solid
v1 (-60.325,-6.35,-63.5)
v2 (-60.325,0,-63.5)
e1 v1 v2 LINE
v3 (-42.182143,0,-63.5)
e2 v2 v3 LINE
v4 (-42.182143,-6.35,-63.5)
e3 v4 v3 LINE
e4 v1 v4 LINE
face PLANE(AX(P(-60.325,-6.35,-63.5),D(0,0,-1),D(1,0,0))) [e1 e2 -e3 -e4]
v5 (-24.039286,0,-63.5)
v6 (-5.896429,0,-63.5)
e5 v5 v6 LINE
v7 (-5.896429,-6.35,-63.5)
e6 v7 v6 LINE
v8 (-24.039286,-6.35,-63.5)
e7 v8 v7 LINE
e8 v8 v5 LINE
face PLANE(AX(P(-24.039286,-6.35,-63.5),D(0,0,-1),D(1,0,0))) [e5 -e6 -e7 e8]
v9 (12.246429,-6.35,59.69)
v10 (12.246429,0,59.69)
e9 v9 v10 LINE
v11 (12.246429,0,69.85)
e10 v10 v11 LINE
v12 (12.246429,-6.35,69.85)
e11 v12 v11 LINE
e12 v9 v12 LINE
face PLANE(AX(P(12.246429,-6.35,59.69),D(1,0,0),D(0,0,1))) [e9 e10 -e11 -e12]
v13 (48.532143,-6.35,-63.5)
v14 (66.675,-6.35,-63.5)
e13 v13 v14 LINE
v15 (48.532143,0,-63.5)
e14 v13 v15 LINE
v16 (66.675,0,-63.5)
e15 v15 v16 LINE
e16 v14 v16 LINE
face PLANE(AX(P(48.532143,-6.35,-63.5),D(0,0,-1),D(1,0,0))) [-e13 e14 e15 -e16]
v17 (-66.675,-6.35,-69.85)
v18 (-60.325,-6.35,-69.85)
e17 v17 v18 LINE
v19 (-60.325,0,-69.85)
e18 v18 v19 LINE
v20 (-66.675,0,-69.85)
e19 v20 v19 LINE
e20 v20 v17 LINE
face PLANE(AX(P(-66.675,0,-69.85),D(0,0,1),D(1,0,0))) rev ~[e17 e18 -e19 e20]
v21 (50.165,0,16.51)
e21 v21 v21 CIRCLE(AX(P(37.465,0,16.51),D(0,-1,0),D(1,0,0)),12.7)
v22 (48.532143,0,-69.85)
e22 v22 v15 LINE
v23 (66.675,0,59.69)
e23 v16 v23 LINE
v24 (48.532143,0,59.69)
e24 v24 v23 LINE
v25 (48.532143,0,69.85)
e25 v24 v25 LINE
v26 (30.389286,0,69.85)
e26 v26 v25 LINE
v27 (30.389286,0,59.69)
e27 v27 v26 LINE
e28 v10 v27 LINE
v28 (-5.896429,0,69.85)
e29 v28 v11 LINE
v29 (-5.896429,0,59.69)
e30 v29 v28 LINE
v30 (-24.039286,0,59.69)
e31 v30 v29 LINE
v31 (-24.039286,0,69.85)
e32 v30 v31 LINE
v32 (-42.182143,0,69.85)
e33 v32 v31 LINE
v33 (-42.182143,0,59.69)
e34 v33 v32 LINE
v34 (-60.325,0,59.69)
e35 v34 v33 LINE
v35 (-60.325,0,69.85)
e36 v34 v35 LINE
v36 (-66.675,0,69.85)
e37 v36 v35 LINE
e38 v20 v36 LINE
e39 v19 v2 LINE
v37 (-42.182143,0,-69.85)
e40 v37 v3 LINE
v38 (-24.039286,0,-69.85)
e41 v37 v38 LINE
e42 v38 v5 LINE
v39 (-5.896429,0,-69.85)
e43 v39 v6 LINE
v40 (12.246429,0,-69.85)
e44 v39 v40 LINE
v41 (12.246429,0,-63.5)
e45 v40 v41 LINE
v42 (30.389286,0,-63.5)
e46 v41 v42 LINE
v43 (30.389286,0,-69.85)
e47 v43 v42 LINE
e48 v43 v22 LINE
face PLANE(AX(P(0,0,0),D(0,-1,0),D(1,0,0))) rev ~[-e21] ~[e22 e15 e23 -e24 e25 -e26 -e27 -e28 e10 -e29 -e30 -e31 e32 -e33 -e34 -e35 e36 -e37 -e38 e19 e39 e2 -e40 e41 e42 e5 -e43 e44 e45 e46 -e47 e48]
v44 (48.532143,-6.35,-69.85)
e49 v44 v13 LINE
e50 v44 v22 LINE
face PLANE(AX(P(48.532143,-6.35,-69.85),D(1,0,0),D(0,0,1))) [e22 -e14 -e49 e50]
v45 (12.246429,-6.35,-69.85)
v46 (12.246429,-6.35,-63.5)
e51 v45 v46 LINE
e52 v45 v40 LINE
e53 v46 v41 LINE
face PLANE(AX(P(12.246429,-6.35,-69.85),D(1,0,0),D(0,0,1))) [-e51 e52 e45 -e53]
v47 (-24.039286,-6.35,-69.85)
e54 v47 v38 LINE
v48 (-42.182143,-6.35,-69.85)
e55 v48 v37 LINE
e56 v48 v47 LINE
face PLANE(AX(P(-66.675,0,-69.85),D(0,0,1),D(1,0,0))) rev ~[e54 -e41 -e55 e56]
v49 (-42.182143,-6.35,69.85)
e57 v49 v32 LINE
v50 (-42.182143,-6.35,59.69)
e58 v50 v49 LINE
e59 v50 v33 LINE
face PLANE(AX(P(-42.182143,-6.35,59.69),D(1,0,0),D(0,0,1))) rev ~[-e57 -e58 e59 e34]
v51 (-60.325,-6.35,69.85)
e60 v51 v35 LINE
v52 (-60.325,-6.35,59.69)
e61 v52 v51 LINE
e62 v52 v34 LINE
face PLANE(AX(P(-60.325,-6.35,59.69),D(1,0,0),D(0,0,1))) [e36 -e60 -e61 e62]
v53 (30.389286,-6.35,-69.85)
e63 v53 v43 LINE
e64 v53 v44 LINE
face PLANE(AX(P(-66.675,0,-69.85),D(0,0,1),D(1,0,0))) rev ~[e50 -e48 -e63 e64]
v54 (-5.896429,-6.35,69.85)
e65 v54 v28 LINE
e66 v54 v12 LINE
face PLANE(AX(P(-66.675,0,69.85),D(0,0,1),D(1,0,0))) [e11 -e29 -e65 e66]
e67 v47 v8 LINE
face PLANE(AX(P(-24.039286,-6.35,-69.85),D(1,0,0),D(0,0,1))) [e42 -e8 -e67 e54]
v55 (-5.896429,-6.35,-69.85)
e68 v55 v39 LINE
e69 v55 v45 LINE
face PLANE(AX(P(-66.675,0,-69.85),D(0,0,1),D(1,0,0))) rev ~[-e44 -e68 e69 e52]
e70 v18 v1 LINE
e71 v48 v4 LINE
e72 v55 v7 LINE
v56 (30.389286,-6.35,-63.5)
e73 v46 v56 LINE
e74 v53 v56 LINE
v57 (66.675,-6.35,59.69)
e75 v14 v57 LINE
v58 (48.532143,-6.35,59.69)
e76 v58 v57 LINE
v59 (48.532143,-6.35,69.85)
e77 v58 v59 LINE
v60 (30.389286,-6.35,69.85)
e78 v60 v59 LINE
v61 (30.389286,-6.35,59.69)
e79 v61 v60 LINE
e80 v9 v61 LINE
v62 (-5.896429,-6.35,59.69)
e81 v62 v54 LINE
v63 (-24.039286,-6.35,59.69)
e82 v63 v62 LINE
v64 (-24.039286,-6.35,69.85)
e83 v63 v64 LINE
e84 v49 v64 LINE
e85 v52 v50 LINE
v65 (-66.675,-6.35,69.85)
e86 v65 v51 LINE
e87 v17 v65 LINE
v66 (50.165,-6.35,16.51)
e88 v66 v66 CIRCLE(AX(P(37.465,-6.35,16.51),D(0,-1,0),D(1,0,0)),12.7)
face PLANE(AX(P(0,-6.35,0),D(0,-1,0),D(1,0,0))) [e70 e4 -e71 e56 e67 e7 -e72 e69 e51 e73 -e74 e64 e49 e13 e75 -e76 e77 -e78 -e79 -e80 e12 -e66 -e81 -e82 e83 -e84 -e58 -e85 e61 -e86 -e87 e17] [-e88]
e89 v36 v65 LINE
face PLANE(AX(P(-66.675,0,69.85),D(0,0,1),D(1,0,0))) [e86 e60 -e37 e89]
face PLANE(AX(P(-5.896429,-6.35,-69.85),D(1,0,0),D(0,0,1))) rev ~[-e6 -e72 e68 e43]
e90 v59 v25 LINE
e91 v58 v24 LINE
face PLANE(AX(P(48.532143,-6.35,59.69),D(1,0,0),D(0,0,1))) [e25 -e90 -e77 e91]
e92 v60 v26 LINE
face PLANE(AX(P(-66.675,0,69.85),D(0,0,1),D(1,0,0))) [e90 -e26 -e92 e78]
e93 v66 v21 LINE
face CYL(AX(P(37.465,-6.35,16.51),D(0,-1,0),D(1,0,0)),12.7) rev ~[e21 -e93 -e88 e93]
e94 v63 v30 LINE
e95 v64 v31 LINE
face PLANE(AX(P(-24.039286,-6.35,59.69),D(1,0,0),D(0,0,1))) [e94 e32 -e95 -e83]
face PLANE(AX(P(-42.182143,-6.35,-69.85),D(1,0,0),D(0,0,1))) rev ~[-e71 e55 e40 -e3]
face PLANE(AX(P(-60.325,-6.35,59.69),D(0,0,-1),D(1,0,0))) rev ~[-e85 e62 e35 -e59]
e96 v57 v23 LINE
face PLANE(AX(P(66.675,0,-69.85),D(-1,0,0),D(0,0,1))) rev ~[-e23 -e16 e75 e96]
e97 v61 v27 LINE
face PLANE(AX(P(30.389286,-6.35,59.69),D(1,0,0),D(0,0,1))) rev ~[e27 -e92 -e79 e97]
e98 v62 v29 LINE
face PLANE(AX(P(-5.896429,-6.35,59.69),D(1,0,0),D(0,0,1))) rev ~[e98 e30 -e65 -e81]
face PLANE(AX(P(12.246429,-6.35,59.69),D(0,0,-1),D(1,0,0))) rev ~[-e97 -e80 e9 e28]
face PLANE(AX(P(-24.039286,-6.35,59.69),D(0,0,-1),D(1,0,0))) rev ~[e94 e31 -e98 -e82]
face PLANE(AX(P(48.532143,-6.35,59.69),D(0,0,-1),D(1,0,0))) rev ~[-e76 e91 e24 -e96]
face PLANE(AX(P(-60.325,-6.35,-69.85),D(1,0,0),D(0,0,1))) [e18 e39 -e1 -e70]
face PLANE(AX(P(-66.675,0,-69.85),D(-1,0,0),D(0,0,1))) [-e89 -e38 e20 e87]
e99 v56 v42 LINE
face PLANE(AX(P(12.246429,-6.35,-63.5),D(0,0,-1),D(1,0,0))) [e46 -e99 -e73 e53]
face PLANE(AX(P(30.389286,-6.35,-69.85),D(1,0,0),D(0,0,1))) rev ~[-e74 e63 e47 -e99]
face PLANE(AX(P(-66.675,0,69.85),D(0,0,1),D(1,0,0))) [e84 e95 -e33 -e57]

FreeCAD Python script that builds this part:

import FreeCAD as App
import Part
import Sketcher
Q = App.Units.Quantity


def add_polygon(sketch, points):
    """Adds a closed chain of lines whose ends are joined by coincident constraints."""
    first, n = sketch.GeometryCount, len(points)
    for a, b in zip(points, points[1:] + points[:1]):
        sketch.addGeometry(Part.LineSegment(App.Vector(*a, 0), App.Vector(*b, 0)), False)
    for i in range(n):
        sketch.addConstraint(Sketcher.Constraint("Coincident", first + i, 2, first + (i + 1) % n, 1))

doc = App.newDocument("Part")
body = doc.addObject("PartDesign::Body", "Body")

# Sketch on XZ plane
sketch1 = body.newObject("Sketcher::SketchObject", "Sketch")
sketch1.AttachmentSupport = (doc.getObject("XZ_Plane"), [""])
sketch1.MapMode = "FlatFace"
add_polygon(sketch1, [(-67, 70), (-67, -70), (67, -70), (67, 70)])  # lines 0-3
sketch1.addConstraint([
    Sketcher.Constraint("Vertical", 0),
    Sketcher.Constraint("Horizontal", 1),
    Sketcher.Constraint("Vertical", 2),
    Sketcher.Constraint("Horizontal", 3),
    Sketcher.Constraint("Symmetric", 0, 2, 2, 2, -1, 1),
    Sketcher.Constraint("DistanceY", 0, 2, 0, 1, Q("5.5 in")),
    Sketcher.Constraint("DistanceX", 1, 1, 1, 2, Q("5.25 in")),
])
pad1 = body.newObject("PartDesign::Pad", "Pad")
pad1.Profile = sketch1
pad1.Length = Q("0.25 in")

# Sketch on XZ plane
sketch2 = body.newObject("Sketcher::SketchObject", "Sketch001")
sketch2.AttachmentSupport = (doc.getObject("XZ_Plane"), [""])
sketch2.MapMode = "FlatFace"
sketch2.AttachmentOffset = App.Placement(App.Vector(0, 0, 0.25 * 25.4), App.Rotation())
add_polygon(sketch2, [(49, 70), (49, 60), (67, 60), (67, 70)])  # lines 0-3
add_polygon(sketch2, [(-60, 70), (-60, 60), (-42, 60), (-42, 70)])  # lines 4-7
add_polygon(sketch2, [(-24, 70), (-24, 60), (-6, 60), (-6, 70)])  # lines 8-11
add_polygon(sketch2, [(12, 70), (12, 60), (30, 60), (30, 70)])  # lines 12-15
add_polygon(sketch2, [(-60, -64), (-60, -70), (-42, -70), (-42, -64)])  # lines 16-19
add_polygon(sketch2, [(-24, -64), (-24, -70), (-6, -70), (-6, -64)])  # lines 20-23
add_polygon(sketch2, [(12, -64), (12, -70), (30, -70), (30, -64)])  # lines 24-27
add_polygon(sketch2, [(49, -64), (49, -70), (67, -70), (67, -64)])  # lines 28-31
sketch2.addConstraint([
    Sketcher.Constraint("Vertical", 0),
    Sketcher.Constraint("Horizontal", 1),
    Sketcher.Constraint("Vertical", 2),
    Sketcher.Constraint("Horizontal", 3),
    Sketcher.Constraint("Vertical", 4),
    Sketcher.Constraint("Horizontal", 5),
    Sketcher.Constraint("Vertical", 6),
    Sketcher.Constraint("Horizontal", 7),
    Sketcher.Constraint("Vertical", 8),
    Sketcher.Constraint("Horizontal", 9),
    Sketcher.Constraint("Vertical", 10),
    Sketcher.Constraint("Horizontal", 11),
    Sketcher.Constraint("Vertical", 12),
    Sketcher.Constraint("Horizontal", 13),
    Sketcher.Constraint("Vertical", 14),
    Sketcher.Constraint("Horizontal", 15),
    Sketcher.Constraint("Vertical", 16),
    Sketcher.Constraint("Horizontal", 17),
    Sketcher.Constraint("Vertical", 18),
    Sketcher.Constraint("Horizontal", 19),
    Sketcher.Constraint("Vertical", 20),
    Sketcher.Constraint("Horizontal", 21),
    Sketcher.Constraint("Vertical", 22),
    Sketcher.Constraint("Horizontal", 23),
    Sketcher.Constraint("Vertical", 24),
    Sketcher.Constraint("Horizontal", 25),
    Sketcher.Constraint("Vertical", 26),
    Sketcher.Constraint("Horizontal", 27),
    Sketcher.Constraint("Vertical", 28),
    Sketcher.Constraint("Horizontal", 29),
    Sketcher.Constraint("Vertical", 30),
    Sketcher.Constraint("Horizontal", 31),
    Sketcher.Constraint("Symmetric", 7, 2, 16, 2, -1),
    Sketcher.Constraint("Symmetric", 11, 2, 20, 2, -1),
    Sketcher.Constraint("Symmetric", 15, 2, 24, 2, -1),
    Sketcher.Constraint("Symmetric", 3, 2, 28, 2, -1),
    Sketcher.Constraint("Horizontal", 1, 2, 4, 2),
    Sketcher.Constraint("Horizontal", 3, 2, 6, 2),
    Sketcher.Constraint("Horizontal", 5, 2, 8, 2),
    Sketcher.Constraint("Horizontal", 7, 2, 10, 2),
    Sketcher.Constraint("Horizontal", 9, 2, 12, 2),
    Sketcher.Constraint("Horizontal", 11, 2, 14, 2),
    Sketcher.Constraint("Horizontal", 19, 2, 22, 2),
    Sketcher.Constraint("Horizontal", 23, 2, 26, 2),
    Sketcher.Constraint("Horizontal", 27, 2, 30, 2),
    Sketcher.Constraint("Vertical", 6, 2, 17, 2),
    Sketcher.Constraint("Vertical", 10, 2, 21, 2),
    Sketcher.Constraint("Vertical", 14, 2, 25, 2),
    Sketcher.Constraint("Vertical", 2, 2, 29, 2),
    Sketcher.Constraint("Equal", 3, 5),
    Sketcher.Constraint("Equal", 7, 9),
    Sketcher.Constraint("Equal", 11, 13),
    Sketcher.Constraint("DistanceY", 0, 2, 0, 1, Q("0.4 in")),
    Sketcher.Constraint("DistanceX", 4, 2, 1, 2, Q("5 in")),
    Sketcher.Constraint("DistanceY", 16, 2, 16, 1, Q("0.25 in")),
    Sketcher.Constraint("DistanceY", 18, 2, -1, 1, Q("2.5 in")),
    Sketcher.Constraint("DistanceX", -1, 1, 1, 2, Q("2.625 in")),
    Sketcher.Constraint("DistanceX", 1, 1, 1, 2, Q("18.142857 mm")),
    Sketcher.Constraint("DistanceX", 9, 2, -1, 1, Q("5.896429 mm")),
    Sketcher.Constraint("DistanceX", -1, 1, 12, 2, Q("12.246429 mm")),
])
pocket1 = body.newObject("PartDesign::Pocket", "Pocket")
pocket1.Profile = sketch2
pocket1.Length = Q("1 in")

# Sketch on XZ plane
sketch3 = body.newObject("Sketcher::SketchObject", "Sketch002")
sketch3.AttachmentSupport = (doc.getObject("XZ_Plane"), [""])
sketch3.MapMode = "FlatFace"
sketch3.AttachmentOffset = App.Placement(App.Vector(0, 0, 0.25 * 25.4), App.Rotation())
sketch3.addGeometry(Part.Circle(App.Vector(37, 17, 0), App.Vector(0, 0, 1), 13), False)
sketch3.addConstraint([
    Sketcher.Constraint("Diameter", 0, Q("1 in")),
    Sketcher.Constraint("DistanceY", -1, 1, 0, 3, Q("0.65 in")),
    Sketcher.Constraint("DistanceX", -1, 1, 0, 3, Q("1.475 in")),
])
pocket2 = body.newObject("PartDesign::Pocket", "Pocket001")
pocket2.Profile = sketch3
pocket2.Length = Q("1 in")

doc.recompute()
